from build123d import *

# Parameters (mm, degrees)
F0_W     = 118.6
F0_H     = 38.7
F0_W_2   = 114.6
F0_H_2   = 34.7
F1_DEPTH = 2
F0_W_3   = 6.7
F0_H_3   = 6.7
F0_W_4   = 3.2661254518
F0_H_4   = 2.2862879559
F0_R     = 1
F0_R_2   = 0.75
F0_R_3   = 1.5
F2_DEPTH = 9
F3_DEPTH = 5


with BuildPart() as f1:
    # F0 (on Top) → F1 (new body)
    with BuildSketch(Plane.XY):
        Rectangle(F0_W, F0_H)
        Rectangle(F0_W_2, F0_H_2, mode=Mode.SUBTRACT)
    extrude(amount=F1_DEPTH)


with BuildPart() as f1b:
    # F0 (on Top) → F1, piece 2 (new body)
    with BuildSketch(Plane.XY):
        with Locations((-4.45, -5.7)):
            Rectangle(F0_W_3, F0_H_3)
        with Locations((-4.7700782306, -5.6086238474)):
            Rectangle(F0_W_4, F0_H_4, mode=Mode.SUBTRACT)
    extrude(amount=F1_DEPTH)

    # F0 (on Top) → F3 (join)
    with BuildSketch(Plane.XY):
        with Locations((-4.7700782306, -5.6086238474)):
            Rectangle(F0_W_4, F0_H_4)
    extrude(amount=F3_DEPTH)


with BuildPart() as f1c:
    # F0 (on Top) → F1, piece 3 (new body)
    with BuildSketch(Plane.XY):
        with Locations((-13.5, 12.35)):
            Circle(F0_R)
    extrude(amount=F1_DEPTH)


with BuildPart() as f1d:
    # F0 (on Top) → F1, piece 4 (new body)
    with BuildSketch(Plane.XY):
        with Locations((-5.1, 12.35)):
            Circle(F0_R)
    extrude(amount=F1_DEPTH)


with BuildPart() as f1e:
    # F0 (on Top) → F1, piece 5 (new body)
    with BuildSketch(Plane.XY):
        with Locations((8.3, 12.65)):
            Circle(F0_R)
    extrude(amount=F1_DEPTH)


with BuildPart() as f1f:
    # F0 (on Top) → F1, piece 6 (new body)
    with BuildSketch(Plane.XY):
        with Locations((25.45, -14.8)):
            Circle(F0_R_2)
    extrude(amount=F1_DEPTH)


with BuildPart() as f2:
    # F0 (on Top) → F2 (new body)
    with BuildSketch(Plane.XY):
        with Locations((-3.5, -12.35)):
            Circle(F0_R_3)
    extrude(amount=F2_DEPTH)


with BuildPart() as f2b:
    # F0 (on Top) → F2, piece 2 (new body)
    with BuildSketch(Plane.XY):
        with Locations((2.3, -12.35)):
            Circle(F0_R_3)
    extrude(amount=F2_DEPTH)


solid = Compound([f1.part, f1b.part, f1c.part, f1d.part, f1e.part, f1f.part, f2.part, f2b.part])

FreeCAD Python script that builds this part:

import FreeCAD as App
import Part
import Sketcher

V = App.Vector
Q = App.Units.Quantity


def add_polygon(sketch, points):
    """Adds a closed chain of lines whose ends are joined by coincident constraints."""
    first, n = sketch.GeometryCount, len(points)
    for a, b in zip(points, points[1:] + points[:1]):
        sketch.addGeometry(Part.LineSegment(App.Vector(*a, 0), App.Vector(*b, 0)), False)
    for i in range(n):
        sketch.addConstraint(Sketcher.Constraint("Coincident", first + i, 2, first + (i + 1) % n, 1))

doc = App.newDocument("Part")
body = doc.addObject("PartDesign::Body", "Body")

# Sketch on XY plane
sketch1 = doc.addObject("Sketcher::SketchObject", "Sketch")
body.addObject(sketch1)
sketch1.AttachmentSupport = (doc.XY_Plane, [""])
sketch1.MapMode = "FlatFace"
add_polygon(sketch1, [(-59.3, 19.35), (-59.3, -19.35), (59.3, -19.35), (59.3, 19.35)])  # lines 0-3
add_polygon(sketch1, [(57.3, -17.35), (-57.3, -17.35), (-57.3, 17.35), (57.3, 17.35)])  # lines 4-7
sketch1.addConstraint(Sketcher.Constraint("Vertical", 0))
sketch1.addConstraint(Sketcher.Constraint("Horizontal", 1))
sketch1.addConstraint(Sketcher.Constraint("Vertical", 2))
sketch1.addConstraint(Sketcher.Constraint("Horizontal", 3))
sketch1.addConstraint(Sketcher.Constraint("Horizontal", 4))
sketch1.addConstraint(Sketcher.Constraint("Vertical", 5))
sketch1.addConstraint(Sketcher.Constraint("Horizontal", 6))
sketch1.addConstraint(Sketcher.Constraint("Vertical", 7))
sketch1.addConstraint(Sketcher.Constraint("Symmetric", 0, 2, 2, 2, -1, 1))
sketch1.addConstraint(Sketcher.Constraint("Symmetric", 4, 2, 6, 2, -1, 1))
sketch1.addConstraint(Sketcher.Constraint("DistanceX", 1, 1, 1, 2, Q("118.6 mm")))
sketch1.addConstraint(Sketcher.Constraint("DistanceX", 4, 2, 4, 1, Q("114.6 mm")))
sketch1.addConstraint(Sketcher.Constraint("DistanceY", 0, 2, 0, 1, Q("38.7 mm")))
sketch1.addConstraint(Sketcher.Constraint("DistanceY", 5, 1, 5, 2, Q("34.7 mm")))
pad1 = doc.addObject("PartDesign::Pad", "Pad")
body.addObject(pad1)
pad1.Profile = sketch1
pad1.Length = 2
body2 = doc.addObject("PartDesign::Body", "Body001")

# Sketch on XY plane
sketch2 = doc.addObject("Sketcher::SketchObject", "Sketch001")
body2.addObject(sketch2)
sketch2.AttachmentSupport = (doc.getObject("XY_Plane001"), [""])
sketch2.MapMode = "FlatFace"
add_polygon(sketch2, [(-7.8, -2.35), (-7.8, -9.05), (-1.1, -9.05), (-1.1, -2.35)])  # lines 0-3
add_polygon(sketch2, [(-3.137016, -6.751768), (-6.403141, -6.751768), (-6.403141, -4.46548), (-3.137016, -4.46548)])  # lines 4-7
sketch2.addConstraint(Sketcher.Constraint("Vertical", 0))
sketch2.addConstraint(Sketcher.Constraint("Horizontal", 1))
sketch2.addConstraint(Sketcher.Constraint("Vertical", 2))
sketch2.addConstraint(Sketcher.Constraint("Horizontal", 3))
sketch2.addConstraint(Sketcher.Constraint("Horizontal", 4))
sketch2.addConstraint(Sketcher.Constraint("Vertical", 5))
sketch2.addConstraint(Sketcher.Constraint("Horizontal", 6))
sketch2.addConstraint(Sketcher.Constraint("Vertical", 7))
sketch2.addConstraint(Sketcher.Constraint("Equal", 3, 0))
sketch2.addConstraint(Sketcher.Constraint("DistanceX", 1, 1, 1, 2, Q("6.7 mm")))
sketch2.addConstraint(Sketcher.Constraint("DistanceX", 0, 2, -1, 1, Q("7.8 mm")))
sketch2.addConstraint(Sketcher.Constraint("DistanceY", 0, 2, -1, 1, Q("9.05 mm")))
sketch2.addConstraint(Sketcher.Constraint("DistanceX", 4, 2, 4, 1, Q("3.266125 mm")))
sketch2.addConstraint(Sketcher.Constraint("DistanceY", 5, 1, 5, 2, Q("2.286288 mm")))
sketch2.addConstraint(Sketcher.Constraint("DistanceX", 4, 2, -1, 1, Q("6.403141 mm")))
sketch2.addConstraint(Sketcher.Constraint("DistanceY", 5, 2, -1, 1, Q("4.46548 mm")))
pad2 = doc.addObject("PartDesign::Pad", "Pad001")
body2.addObject(pad2)
pad2.Profile = sketch2
pad2.Length = 2

# Sketch on XY plane
sketch3 = doc.addObject("Sketcher::SketchObject", "Sketch002")
body2.addObject(sketch3)
sketch3.AttachmentSupport = (doc.getObject("XY_Plane001"), [""])
sketch3.MapMode = "FlatFace"
add_polygon(sketch3, [(-6.403141, -4.46548), (-6.403141, -6.751768), (-3.137016, -6.751768), (-3.137016, -4.46548)])  # lines 0-3
sketch3.addConstraint(Sketcher.Constraint("Vertical", 0))
sketch3.addConstraint(Sketcher.Constraint("Horizontal", 1))
sketch3.addConstraint(Sketcher.Constraint("Vertical", 2))
sketch3.addConstraint(Sketcher.Constraint("Horizontal", 3))
sketch3.addConstraint(Sketcher.Constraint("DistanceX", 1, 1, 1, 2, Q("3.266125 mm")))
sketch3.addConstraint(Sketcher.Constraint("DistanceY", 0, 2, 0, 1, Q("2.286288 mm")))
sketch3.addConstraint(Sketcher.Constraint("DistanceX", 0, 2, -1, 1, Q("6.403141 mm")))
sketch3.addConstraint(Sketcher.Constraint("DistanceY", 2, 2, -1, 1, Q("4.46548 mm")))
pad3 = doc.addObject("PartDesign::Pad", "Pad002")
body2.addObject(pad3)
pad3.Profile = sketch3
pad3.Length = 5
body3 = doc.addObject("PartDesign::Body", "Body002")

# Sketch on XY plane
sketch4 = doc.addObject("Sketcher::SketchObject", "Sketch003")
body3.addObject(sketch4)
sketch4.AttachmentSupport = (doc.getObject("XY_Plane002"), [""])
sketch4.MapMode = "FlatFace"
sketch4.addGeometry(Part.Circle(V(-13.5, 12.35, 0), V(0, 0, 1), 1), False)
sketch4.addConstraint(Sketcher.Constraint("Diameter", 0, Q("2 mm")))
sketch4.addConstraint(Sketcher.Constraint("DistanceX", 0, 3, -1, 1, Q("13.5 mm")))
sketch4.addConstraint(Sketcher.Constraint("DistanceY", -1, 1, 0, 3, Q("12.35 mm")))
pad4 = doc.addObject("PartDesign::Pad", "Pad003")
body3.addObject(pad4)
pad4.Profile = sketch4
pad4.Length = 2
body4 = doc.addObject("PartDesign::Body", "Body003")

# Sketch on XY plane
sketch5 = doc.addObject("Sketcher::SketchObject", "Sketch004")
body4.addObject(sketch5)
sketch5.AttachmentSupport = (doc.getObject("XY_Plane003"), [""])
sketch5.MapMode = "FlatFace"
sketch5.addGeometry(Part.Circle(V(-5.1, 12.35, 0), V(0, 0, 1), 1), False)
sketch5.addConstraint(Sketcher.Constraint("Diameter", 0, Q("2 mm")))
sketch5.addConstraint(Sketcher.Constraint("DistanceX", 0, 3, -1, 1, Q("5.1 mm")))
sketch5.addConstraint(Sketcher.Constraint("DistanceY", -1, 1, 0, 3, Q("12.35 mm")))
pad5 = doc.addObject("PartDesign::Pad", "Pad004")
body4.addObject(pad5)
pad5.Profile = sketch5
pad5.Length = 2
body5 = doc.addObject("PartDesign::Body", "Body004")

# Sketch on XY plane
sketch6 = doc.addObject("Sketcher::SketchObject", "Sketch005")
body5.addObject(sketch6)
sketch6.AttachmentSupport = (doc.getObject("XY_Plane004"), [""])
sketch6.MapMode = "FlatFace"
sketch6.addGeometry(Part.Circle(V(8.3, 12.65, 0), V(0, 0, 1), 1), False)
sketch6.addConstraint(Sketcher.Constraint("Diameter", 0, Q("2 mm")))
sketch6.addConstraint(Sketcher.Constraint("DistanceX", -1, 1, 0, 3, Q("8.3 mm")))
sketch6.addConstraint(Sketcher.Constraint("DistanceY", -1, 1, 0, 3, Q("12.65 mm")))
pad6 = doc.addObject("PartDesign::Pad", "Pad005")
body5.addObject(pad6)
pad6.Profile = sketch6
pad6.Length = 2
body6 = doc.addObject("PartDesign::Body", "Body005")

# Sketch on XY plane
sketch7 = doc.addObject("Sketcher::SketchObject", "Sketch006")
body6.addObject(sketch7)
sketch7.AttachmentSupport = (doc.getObject("XY_Plane005"), [""])
sketch7.MapMode = "FlatFace"
sketch7.addGeometry(Part.Circle(V(25.45, -14.8, 0), V(0, 0, 1), 0.75), False)
sketch7.addConstraint(Sketcher.Constraint("Diameter", 0, Q("1.5 mm")))
sketch7.addConstraint(Sketcher.Constraint("DistanceY", 0, 3, -1, 1, Q("14.8 mm")))
sketch7.addConstraint(Sketcher.Constraint("DistanceX", -1, 1, 0, 3, Q("25.45 mm")))
pad7 = doc.addObject("PartDesign::Pad", "Pad006")
body6.addObject(pad7)
pad7.Profile = sketch7
pad7.Length = 2
body7 = doc.addObject("PartDesign::Body", "Body006")

# Sketch on XY plane
sketch8 = doc.addObject("Sketcher::SketchObject", "Sketch007")
body7.addObject(sketch8)
sketch8.AttachmentSupport = (doc.getObject("XY_Plane006"), [""])
sketch8.MapMode = "FlatFace"
sketch8.addGeometry(Part.Circle(V(-3.5, -12.35, 0), V(0, 0, 1), 1.5), False)
sketch8.addConstraint(Sketcher.Constraint("Diameter", 0, Q("3 mm")))
sketch8.addConstraint(Sketcher.Constraint("DistanceX", 0, 3, -1, 1, Q("3.5 mm")))
sketch8.addConstraint(Sketcher.Constraint("DistanceY", 0, 3, -1, 1, Q("12.35 mm")))
pad8 = doc.addObject("PartDesign::Pad", "Pad007")
body7.addObject(pad8)
pad8.Profile = sketch8
pad8.Length = 9
body8 = doc.addObject("PartDesign::Body", "Body007")

# Sketch on XY plane
sketch9 = doc.addObject("Sketcher::SketchObject", "Sketch008")
body8.addObject(sketch9)
sketch9.AttachmentSupport = (doc.getObject("XY_Plane007"), [""])
sketch9.MapMode = "FlatFace"
sketch9.addGeometry(Part.Circle(V(2.3, -12.35, 0), V(0, 0, 1), 1.5), False)
sketch9.addConstraint(Sketcher.Constraint("Diameter", 0, Q("3 mm")))
sketch9.addConstraint(Sketcher.Constraint("DistanceX", -1, 1, 0, 3, Q("2.3 mm")))
sketch9.addConstraint(Sketcher.Constraint("DistanceY", 0, 3, -1, 1, Q("12.35 mm")))
pad9 = doc.addObject("PartDesign::Pad", "Pad008")
body8.addObject(pad9)
pad9.Profile = sketch9
pad9.Length = 9

doc.recompute()
